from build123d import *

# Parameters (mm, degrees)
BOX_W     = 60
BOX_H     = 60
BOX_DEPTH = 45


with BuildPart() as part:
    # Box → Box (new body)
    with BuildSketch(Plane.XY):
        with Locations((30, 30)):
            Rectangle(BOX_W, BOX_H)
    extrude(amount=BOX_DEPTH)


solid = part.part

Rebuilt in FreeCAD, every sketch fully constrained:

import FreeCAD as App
import Part
import Sketcher
Q = App.Units.Quantity

doc = App.newDocument("Part")
body = doc.addObject("PartDesign::Body", "Body")

sketch1 = body.newObject("Sketcher::SketchObject", "Sketch")
sketch1.AttachmentSupport = (doc.getObject("XY_Plane"), [""])
sketch1.MapMode = "FlatFace"
sketch1.addGeometry(Part.LineSegment(App.Vector(0, 60, 0), App.Vector(0, 0, 0)), False)
sketch1.addGeometry(Part.LineSegment(App.Vector(0, 0, 0), App.Vector(60, 0, 0)), False)
sketch1.addGeometry(Part.LineSegment(App.Vector(60, 0, 0), App.Vector(60, 60, 0)), False)
sketch1.addGeometry(Part.LineSegment(App.Vector(60, 60, 0), App.Vector(0, 60, 0)), False)
sketch1.addConstraint(Sketcher.Constraint("Coincident", 0, 2, 1, 1))
sketch1.addConstraint(Sketcher.Constraint("Coincident", 1, 2, 2, 1))
sketch1.addConstraint(Sketcher.Constraint("Coincident", 2, 2, 3, 1))
sketch1.addConstraint(Sketcher.Constraint("Coincident", 3, 2, 0, 1))
sketch1.addConstraint(Sketcher.Constraint("Vertical", 0))
sketch1.addConstraint(Sketcher.Constraint("Horizontal", 1))
sketch1.addConstraint(Sketcher.Constraint("Vertical", 2))
sketch1.addConstraint(Sketcher.Constraint("Horizontal", 3))
sketch1.addConstraint(Sketcher.Constraint("Coincident", 0, 2, -1, 1))
sketch1.addConstraint(Sketcher.Constraint("Equal", 3, 0))
sketch1.addConstraint(Sketcher.Constraint("DistanceX", 1, 1, 1, 2, Q("60 mm")))
pad1 = body.newObject("PartDesign::Pad", "Pad")
pad1.Profile = sketch1
pad1.Length = 45

doc.recompute()
